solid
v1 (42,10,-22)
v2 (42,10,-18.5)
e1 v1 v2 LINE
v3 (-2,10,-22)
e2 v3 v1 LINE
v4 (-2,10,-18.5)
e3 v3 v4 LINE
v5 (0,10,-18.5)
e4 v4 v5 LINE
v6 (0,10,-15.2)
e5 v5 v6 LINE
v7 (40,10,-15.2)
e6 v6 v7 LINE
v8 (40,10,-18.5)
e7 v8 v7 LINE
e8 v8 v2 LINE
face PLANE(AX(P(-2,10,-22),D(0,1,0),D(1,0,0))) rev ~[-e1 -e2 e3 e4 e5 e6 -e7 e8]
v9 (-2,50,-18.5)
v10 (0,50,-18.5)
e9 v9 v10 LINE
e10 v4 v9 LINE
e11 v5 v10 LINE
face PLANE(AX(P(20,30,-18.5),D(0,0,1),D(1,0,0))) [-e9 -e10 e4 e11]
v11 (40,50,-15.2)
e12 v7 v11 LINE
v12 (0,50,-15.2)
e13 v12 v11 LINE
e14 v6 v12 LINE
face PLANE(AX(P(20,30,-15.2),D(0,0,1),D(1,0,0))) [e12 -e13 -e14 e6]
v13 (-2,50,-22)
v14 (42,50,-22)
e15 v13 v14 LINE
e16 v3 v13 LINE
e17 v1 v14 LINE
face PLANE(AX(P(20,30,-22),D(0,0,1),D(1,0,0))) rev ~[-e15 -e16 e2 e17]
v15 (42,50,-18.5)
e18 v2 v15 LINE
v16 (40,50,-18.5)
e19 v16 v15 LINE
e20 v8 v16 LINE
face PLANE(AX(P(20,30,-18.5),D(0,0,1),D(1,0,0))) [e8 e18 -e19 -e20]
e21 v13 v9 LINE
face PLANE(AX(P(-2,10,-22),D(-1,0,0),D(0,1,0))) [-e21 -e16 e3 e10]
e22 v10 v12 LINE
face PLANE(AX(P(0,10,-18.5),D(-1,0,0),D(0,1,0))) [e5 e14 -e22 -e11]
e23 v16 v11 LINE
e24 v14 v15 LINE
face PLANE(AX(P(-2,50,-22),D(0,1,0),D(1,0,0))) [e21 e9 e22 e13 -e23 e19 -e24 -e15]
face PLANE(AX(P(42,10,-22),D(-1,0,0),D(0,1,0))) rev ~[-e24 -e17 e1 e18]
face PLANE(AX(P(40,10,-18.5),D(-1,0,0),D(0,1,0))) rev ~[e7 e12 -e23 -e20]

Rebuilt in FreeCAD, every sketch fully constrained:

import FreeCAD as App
import Part
import Sketcher
Q = App.Units.Quantity

doc = App.newDocument("Part")
body = doc.addObject("PartDesign::Body", "Body")

sketch1 = body.newObject("Sketcher::SketchObject", "Sketch")
sketch1.AttachmentSupport = (doc.getObject("XY_Plane"), [""])
sketch1.MapMode = "FlatFace"
sketch1.AttachmentOffset = App.Placement(App.Vector(0, 0, -3.5), App.Rotation())
sketch1.addGeometry([
    Part.LineSegment(App.Vector(-2, 40, 0), App.Vector(-2, 0, 0)),
    Part.LineSegment(App.Vector(-2, 0, 0), App.Vector(42, 0, 0)),
    Part.LineSegment(App.Vector(42, 0, 0), App.Vector(42, 40, 0)),
    Part.LineSegment(App.Vector(42, 40, 0), App.Vector(-2, 40, 0)),
], False)
sketch1.addConstraint([
    Sketcher.Constraint("Coincident", 0, 2, 1, 1),
    Sketcher.Constraint("Coincident", 1, 2, 2, 1),
    Sketcher.Constraint("Coincident", 2, 2, 3, 1),
    Sketcher.Constraint("Coincident", 3, 2, 0, 1),
    Sketcher.Constraint("Vertical", 0),
    Sketcher.Constraint("Horizontal", 1),
    Sketcher.Constraint("Vertical", 2),
    Sketcher.Constraint("Horizontal", 3),
    Sketcher.Constraint("PointOnObject", 0, 2, -1),
    Sketcher.Constraint("DistanceX", 1, 1, 1, 2, Q("44 mm")),
    Sketcher.Constraint("DistanceY", 0, 2, 0, 1, Q("40 mm")),
    Sketcher.Constraint("DistanceX", 0, 2, -1, 1, Q("2 mm")),
])
pad1 = body.newObject("PartDesign::Pad", "Pad")
pad1.Profile = sketch1
pad1.Length = 3.5
body2 = doc.addObject("PartDesign::Body", "Body001")

sketch2 = body2.newObject("Sketcher::SketchObject", "Sketch001")
sketch2.AttachmentSupport = (doc.getObject("XY_Plane001"), [""])
sketch2.MapMode = "FlatFace"
sketch2.addGeometry([
    Part.LineSegment(App.Vector(0, 40, 0), App.Vector(0, 0, 0)),
    Part.LineSegment(App.Vector(0, 0, 0), App.Vector(40, 0, 0)),
    Part.LineSegment(App.Vector(40, 0, 0), App.Vector(40, 40, 0)),
    Part.LineSegment(App.Vector(40, 40, 0), App.Vector(0, 40, 0)),
], False)
sketch2.addConstraint([
    Sketcher.Constraint("Coincident", 0, 2, 1, 1),
    Sketcher.Constraint("Coincident", 1, 2, 2, 1),
    Sketcher.Constraint("Coincident", 2, 2, 3, 1),
    Sketcher.Constraint("Coincident", 3, 2, 0, 1),
    Sketcher.Constraint("Vertical", 0),
    Sketcher.Constraint("Horizontal", 1),
    Sketcher.Constraint("Vertical", 2),
    Sketcher.Constraint("Horizontal", 3),
    Sketcher.Constraint("Coincident", 0, 2, -1, 1),
    Sketcher.Constraint("Equal", 3, 0),
    Sketcher.Constraint("DistanceX", 1, 1, 1, 2, Q("40 mm")),
])
pad2 = body2.newObject("PartDesign::Pad", "Pad001")
pad2.Profile = sketch2
pad2.Length = 3.3
doc.recompute()

boolean = body2.newObject("PartDesign::Boolean", "Boolean")
boolean.Type = "Fuse"
boolean.addObjects([body])
body3 = doc.addObject("PartDesign::Body", "Body002")
doc.recompute()

body2.Placement = App.Placement(App.Vector(0, 10, -18.5), App.Rotation(App.Vector(0, 0, 1), 0))
boolean2 = body3.newObject("PartDesign::Boolean", "Boolean001")
boolean2.Type = "Fuse"
boolean2.addObjects([body2])

doc.recompute()
